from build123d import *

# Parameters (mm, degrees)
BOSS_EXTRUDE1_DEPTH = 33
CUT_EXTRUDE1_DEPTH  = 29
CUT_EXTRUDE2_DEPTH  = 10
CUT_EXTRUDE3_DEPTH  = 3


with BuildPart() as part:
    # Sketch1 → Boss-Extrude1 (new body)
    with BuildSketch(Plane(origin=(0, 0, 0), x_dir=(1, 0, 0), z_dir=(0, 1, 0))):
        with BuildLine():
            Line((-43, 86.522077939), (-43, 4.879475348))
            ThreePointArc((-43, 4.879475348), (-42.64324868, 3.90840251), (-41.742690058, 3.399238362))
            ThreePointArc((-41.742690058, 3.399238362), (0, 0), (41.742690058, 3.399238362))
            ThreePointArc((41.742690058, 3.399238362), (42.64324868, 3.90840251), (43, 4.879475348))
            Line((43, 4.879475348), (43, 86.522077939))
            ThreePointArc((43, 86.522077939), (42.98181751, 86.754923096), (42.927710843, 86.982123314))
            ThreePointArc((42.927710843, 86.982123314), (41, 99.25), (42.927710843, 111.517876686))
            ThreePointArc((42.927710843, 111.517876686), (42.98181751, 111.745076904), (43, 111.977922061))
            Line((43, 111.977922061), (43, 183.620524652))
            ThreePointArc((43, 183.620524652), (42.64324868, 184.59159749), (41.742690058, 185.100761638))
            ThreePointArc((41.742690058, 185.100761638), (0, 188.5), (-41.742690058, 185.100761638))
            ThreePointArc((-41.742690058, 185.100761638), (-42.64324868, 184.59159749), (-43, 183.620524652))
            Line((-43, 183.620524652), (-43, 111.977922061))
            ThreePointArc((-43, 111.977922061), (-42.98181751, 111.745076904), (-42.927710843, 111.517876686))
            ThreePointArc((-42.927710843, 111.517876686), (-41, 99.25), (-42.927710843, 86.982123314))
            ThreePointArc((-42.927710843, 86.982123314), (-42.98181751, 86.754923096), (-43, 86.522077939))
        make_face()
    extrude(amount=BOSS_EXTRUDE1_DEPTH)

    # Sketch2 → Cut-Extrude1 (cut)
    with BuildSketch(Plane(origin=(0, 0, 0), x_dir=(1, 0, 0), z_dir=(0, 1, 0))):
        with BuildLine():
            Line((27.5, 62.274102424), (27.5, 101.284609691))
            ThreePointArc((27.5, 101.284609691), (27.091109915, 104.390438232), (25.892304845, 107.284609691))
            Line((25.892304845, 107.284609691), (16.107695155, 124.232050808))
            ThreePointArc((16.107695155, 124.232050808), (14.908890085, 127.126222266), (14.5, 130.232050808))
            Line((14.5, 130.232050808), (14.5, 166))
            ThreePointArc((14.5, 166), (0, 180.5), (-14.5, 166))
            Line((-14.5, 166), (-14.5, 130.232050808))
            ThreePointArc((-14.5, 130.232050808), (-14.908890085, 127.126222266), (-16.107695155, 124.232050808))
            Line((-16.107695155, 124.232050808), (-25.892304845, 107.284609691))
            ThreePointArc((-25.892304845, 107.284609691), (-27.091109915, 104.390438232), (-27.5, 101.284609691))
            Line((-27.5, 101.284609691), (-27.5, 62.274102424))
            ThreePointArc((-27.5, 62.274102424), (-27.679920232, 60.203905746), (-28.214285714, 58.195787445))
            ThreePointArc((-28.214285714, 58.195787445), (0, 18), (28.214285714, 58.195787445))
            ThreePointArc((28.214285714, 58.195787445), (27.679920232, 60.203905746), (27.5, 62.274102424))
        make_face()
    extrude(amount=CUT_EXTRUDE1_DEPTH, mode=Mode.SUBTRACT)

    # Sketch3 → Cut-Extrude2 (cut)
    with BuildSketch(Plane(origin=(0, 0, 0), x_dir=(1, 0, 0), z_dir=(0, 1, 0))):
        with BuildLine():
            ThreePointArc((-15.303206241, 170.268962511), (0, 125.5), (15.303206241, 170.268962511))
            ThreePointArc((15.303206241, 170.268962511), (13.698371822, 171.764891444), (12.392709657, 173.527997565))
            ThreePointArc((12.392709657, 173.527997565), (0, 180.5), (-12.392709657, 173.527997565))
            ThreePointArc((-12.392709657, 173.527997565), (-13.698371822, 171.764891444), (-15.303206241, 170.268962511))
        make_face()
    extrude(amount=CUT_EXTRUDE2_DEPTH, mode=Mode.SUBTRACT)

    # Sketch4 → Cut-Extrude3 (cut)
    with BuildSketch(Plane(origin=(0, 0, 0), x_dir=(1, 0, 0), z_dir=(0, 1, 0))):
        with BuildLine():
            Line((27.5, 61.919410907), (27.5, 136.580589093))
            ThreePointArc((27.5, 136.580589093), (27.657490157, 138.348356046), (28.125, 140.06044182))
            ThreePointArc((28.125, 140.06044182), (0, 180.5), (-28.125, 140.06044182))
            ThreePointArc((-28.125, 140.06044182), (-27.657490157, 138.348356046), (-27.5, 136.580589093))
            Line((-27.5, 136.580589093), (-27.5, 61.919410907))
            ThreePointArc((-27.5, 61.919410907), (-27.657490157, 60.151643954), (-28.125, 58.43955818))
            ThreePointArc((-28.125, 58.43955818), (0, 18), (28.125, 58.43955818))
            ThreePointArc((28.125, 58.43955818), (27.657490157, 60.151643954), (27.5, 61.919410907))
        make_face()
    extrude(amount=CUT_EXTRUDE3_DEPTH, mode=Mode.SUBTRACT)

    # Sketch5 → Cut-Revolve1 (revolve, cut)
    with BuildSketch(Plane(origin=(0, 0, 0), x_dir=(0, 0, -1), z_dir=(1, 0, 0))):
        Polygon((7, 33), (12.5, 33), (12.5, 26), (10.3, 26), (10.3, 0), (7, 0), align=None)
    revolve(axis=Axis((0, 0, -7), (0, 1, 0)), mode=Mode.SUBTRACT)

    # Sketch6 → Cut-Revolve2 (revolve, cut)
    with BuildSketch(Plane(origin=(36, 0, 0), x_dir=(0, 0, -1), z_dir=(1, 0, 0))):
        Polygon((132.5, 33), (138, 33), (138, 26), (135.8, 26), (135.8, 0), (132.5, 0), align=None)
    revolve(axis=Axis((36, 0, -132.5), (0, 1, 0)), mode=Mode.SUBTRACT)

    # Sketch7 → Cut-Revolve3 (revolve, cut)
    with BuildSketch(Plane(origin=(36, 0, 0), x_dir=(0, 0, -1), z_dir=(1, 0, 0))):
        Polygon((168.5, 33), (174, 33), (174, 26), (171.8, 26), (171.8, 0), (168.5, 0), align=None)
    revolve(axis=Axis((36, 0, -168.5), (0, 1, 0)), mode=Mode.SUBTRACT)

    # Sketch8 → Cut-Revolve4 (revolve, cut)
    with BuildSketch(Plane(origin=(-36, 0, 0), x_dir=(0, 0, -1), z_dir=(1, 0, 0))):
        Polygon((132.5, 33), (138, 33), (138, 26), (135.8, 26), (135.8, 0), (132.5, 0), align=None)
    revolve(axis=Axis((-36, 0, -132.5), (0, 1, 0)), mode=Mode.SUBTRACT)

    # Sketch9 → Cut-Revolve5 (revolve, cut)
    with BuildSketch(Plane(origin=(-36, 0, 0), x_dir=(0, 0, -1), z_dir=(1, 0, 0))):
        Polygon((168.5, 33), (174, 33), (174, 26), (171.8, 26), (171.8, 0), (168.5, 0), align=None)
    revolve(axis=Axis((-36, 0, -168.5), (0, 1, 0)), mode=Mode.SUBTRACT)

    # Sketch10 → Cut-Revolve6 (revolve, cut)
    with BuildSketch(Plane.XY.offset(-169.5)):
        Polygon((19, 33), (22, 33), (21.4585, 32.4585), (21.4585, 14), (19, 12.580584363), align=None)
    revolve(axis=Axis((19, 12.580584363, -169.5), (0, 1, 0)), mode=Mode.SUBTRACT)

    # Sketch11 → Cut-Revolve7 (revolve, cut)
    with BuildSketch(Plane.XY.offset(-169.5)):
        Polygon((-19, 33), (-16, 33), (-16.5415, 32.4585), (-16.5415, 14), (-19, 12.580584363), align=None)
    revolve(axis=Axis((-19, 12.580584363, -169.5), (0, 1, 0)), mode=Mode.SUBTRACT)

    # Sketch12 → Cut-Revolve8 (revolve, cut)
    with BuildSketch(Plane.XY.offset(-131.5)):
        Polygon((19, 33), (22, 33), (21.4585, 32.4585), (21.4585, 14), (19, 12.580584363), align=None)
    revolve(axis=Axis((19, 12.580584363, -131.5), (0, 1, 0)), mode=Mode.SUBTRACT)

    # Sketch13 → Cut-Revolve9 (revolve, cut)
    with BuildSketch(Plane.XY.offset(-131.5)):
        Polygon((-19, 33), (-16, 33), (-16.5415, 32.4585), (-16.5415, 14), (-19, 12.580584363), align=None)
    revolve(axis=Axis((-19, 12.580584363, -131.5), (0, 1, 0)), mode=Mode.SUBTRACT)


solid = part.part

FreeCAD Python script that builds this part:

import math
import FreeCAD as App
import Part
import Sketcher
from FreeCAD import Vector
Q = App.Units.Quantity

doc = App.newDocument("Part")
body = doc.addObject("PartDesign::Body", "Body")

# Sketch on XZ plane
sketch1 = doc.addObject("Sketcher::SketchObject", "Sketch")
body.addObject(sketch1)
sketch1.AttachmentSupport = (doc.XZ_Plane, [""])
sketch1.MapMode = "FlatFace"
sketch1.addGeometry([
    Part.LineSegment(Vector(-43, -86.522078, 0), Vector(-43, -4.879475, 0)),  # 0
    Part.ArcOfCircle(Part.Circle(Vector(-41.5, -4.879475, 0), Vector(0, 0, 1), 1.5), math.radians(99.311005), math.radians(180)),  # 1
    Part.ArcOfCircle(Part.Circle(Vector(0, -258, 0), Vector(0, 0, 1), 258), math.radians(80.688995), math.radians(99.311005)),  # 2
    Part.ArcOfCircle(Part.Circle(Vector(41.5, -4.879475, 0), Vector(0, 0, 1), 1.5), math.radians(0), math.radians(80.688995)),  # 3
    Part.LineSegment(Vector(43, -4.879475, 0), Vector(43, -86.522078, 0)),  # 4
    Part.ArcOfCircle(Part.Circle(Vector(41.5, -86.522078, 0), Vector(0, 0, 1), 1.5), math.radians(-17.860284), math.radians(0)),  # 5
    Part.ArcOfCircle(Part.Circle(Vector(81, -99.25, 0), Vector(0, 0, 1), 40), math.radians(162.139716), math.radians(197.860284)),  # 6
    Part.ArcOfCircle(Part.Circle(Vector(41.5, -111.977922, 0), Vector(0, 0, 1), 1.5), math.radians(0), math.radians(17.860284)),  # 7
    Part.LineSegment(Vector(43, -111.977922, 0), Vector(43, -183.620525, 0)),  # 8
    Part.ArcOfCircle(Part.Circle(Vector(41.5, -183.620525, 0), Vector(0, 0, 1), 1.5), math.radians(-80.688995), math.radians(0)),  # 9
    Part.ArcOfCircle(Part.Circle(Vector(0, 69.5, 0), Vector(0, 0, 1), 258), math.radians(-99.311005), math.radians(-80.688995)),  # 10
    Part.ArcOfCircle(Part.Circle(Vector(-41.5, -183.620525, 0), Vector(0, 0, 1), 1.5), math.radians(180), math.radians(260.688995)),  # 11
    Part.LineSegment(Vector(-43, -183.620525, 0), Vector(-43, -111.977922, 0)),  # 12
    Part.ArcOfCircle(Part.Circle(Vector(-41.5, -111.977922, 0), Vector(0, 0, 1), 1.5), math.radians(162.139716), math.radians(180)),  # 13
    Part.ArcOfCircle(Part.Circle(Vector(-81, -99.25, 0), Vector(0, 0, 1), 40), math.radians(-17.860284), math.radians(17.860284)),  # 14
    Part.ArcOfCircle(Part.Circle(Vector(-41.5, -86.522078, 0), Vector(0, 0, 1), 1.5), math.radians(180), math.radians(197.860284)),  # 15
], False)
sketch1.addConstraint([
    Sketcher.Constraint("Tangent", 0, 2, 1, 2),
    Sketcher.Constraint("Tangent", 1, 1, 2, 2),
    Sketcher.Constraint("Tangent", 2, 1, 3, 2),
    Sketcher.Constraint("Tangent", 3, 1, 4, 1),
    Sketcher.Constraint("Tangent", 4, 2, 5, 2),
    Sketcher.Constraint("Tangent", 5, 1, 6, 1),
    Sketcher.Constraint("Tangent", 6, 2, 7, 2),
    Sketcher.Constraint("Tangent", 7, 1, 8, 1),
    Sketcher.Constraint("Tangent", 8, 2, 9, 2),
    Sketcher.Constraint("Tangent", 9, 1, 10, 2),
    Sketcher.Constraint("Tangent", 10, 1, 11, 2),
    Sketcher.Constraint("Tangent", 11, 1, 12, 1),
    Sketcher.Constraint("Tangent", 12, 2, 13, 2),
    Sketcher.Constraint("Tangent", 13, 1, 14, 1),
    Sketcher.Constraint("Tangent", 14, 2, 15, 2),
    Sketcher.Constraint("Tangent", 15, 1, 0, 1),
    Sketcher.Constraint("Vertical", 0),
    Sketcher.Constraint("Vertical", 4),
    Sketcher.Constraint("Vertical", 8),
    Sketcher.Constraint("Vertical", 12),
    Sketcher.Constraint("Equal", 1, 3),
    Sketcher.Constraint("Equal", 3, 5),
    Sketcher.Constraint("Equal", 5, 7),
    Sketcher.Constraint("Equal", 7, 9),
    Sketcher.Constraint("Equal", 2, 10),
    Sketcher.Constraint("Equal", 9, 11),
    Sketcher.Constraint("Equal", 11, 13),
    Sketcher.Constraint("Equal", 6, 14),
    Sketcher.Constraint("Equal", 13, 15),
    Sketcher.Constraint("Symmetric", 1, 3, 3, 3, -2),
    Sketcher.Constraint("Symmetric", 9, 3, 11, 3, -2),
    Sketcher.Constraint("Symmetric", 6, 3, 14, 3, -2),
    Sketcher.Constraint("Vertical", 5, 3, 7, 3),
    Sketcher.Constraint("Radius", 2, 258.0),
    Sketcher.Constraint("Radius", 6, 40.0),
    Sketcher.Constraint("Radius", 1, 1.5),
    Sketcher.Constraint("DistanceY", 2, 3, -1, 1, 258.0),
    Sketcher.Constraint("DistanceX", -1, 1, 6, 3, 81.0),
    Sketcher.Constraint("DistanceX", 0, 2, -1, 1, 43.0),
    Sketcher.Constraint("DistanceY", -1, 1, 10, 3, 69.5),
    Sketcher.Constraint("DistanceY", 6, 3, -1, 1, 99.25),
])
pad1 = doc.addObject("PartDesign::Pad", "Pad")
body.addObject(pad1)
pad1.Profile = sketch1
pad1.Length = 33
pad1.Reversed = True

# Sketch on XZ plane
sketch2 = doc.addObject("Sketcher::SketchObject", "Sketch001")
body.addObject(sketch2)
sketch2.AttachmentSupport = (doc.XZ_Plane, [""])
sketch2.MapMode = "FlatFace"
sketch2.addGeometry([
    Part.LineSegment(Vector(27.5, -62.274102, 0), Vector(27.5, -101.28461, 0)),  # 0
    Part.ArcOfCircle(Part.Circle(Vector(15.5, -101.28461, 0), Vector(0, 0, 1), 12), math.radians(-30), math.radians(0)),  # 1
    Part.LineSegment(Vector(25.892305, -107.28461, 0), Vector(16.107695, -124.232051, 0)),  # 2
    Part.ArcOfCircle(Part.Circle(Vector(26.5, -130.232051, 0), Vector(0, 0, 1), 12), math.radians(150), math.radians(180)),  # 3
    Part.LineSegment(Vector(14.5, -130.232051, 0), Vector(14.5, -166, 0)),  # 4
    Part.ArcOfCircle(Part.Circle(Vector(0, -166, 0), Vector(0, 0, 1), 14.5), math.radians(180), math.radians(360)),  # 5
    Part.LineSegment(Vector(-14.5, -166, 0), Vector(-14.5, -130.232051, 0)),  # 6
    Part.ArcOfCircle(Part.Circle(Vector(-26.5, -130.232051, 0), Vector(0, 0, 1), 12), math.radians(0), math.radians(30)),  # 7
    Part.LineSegment(Vector(-16.107695, -124.232051, 0), Vector(-25.892305, -107.28461, 0)),  # 8
    Part.ArcOfCircle(Part.Circle(Vector(-15.5, -101.28461, 0), Vector(0, 0, 1), 12), math.radians(-180), math.radians(-150)),  # 9
    Part.LineSegment(Vector(-27.5, -101.28461, 0), Vector(-27.5, -62.274102, 0)),  # 10
    Part.ArcOfCircle(Part.Circle(Vector(-39.5, -62.274102, 0), Vector(0, 0, 1), 12), math.radians(0), math.radians(19.868319)),  # 11
    Part.ArcOfCircle(Part.Circle(Vector(0, -48, 0), Vector(0, 0, 1), 30), math.radians(-19.868319), math.radians(199.868319)),  # 12
    Part.ArcOfCircle(Part.Circle(Vector(39.5, -62.274102, 0), Vector(0, 0, 1), 12), math.radians(160.131681), math.radians(180)),  # 13
], False)
sketch2.addConstraint([
    Sketcher.Constraint("Tangent", 0, 2, 1, 2),
    Sketcher.Constraint("Tangent", 1, 1, 2, 1),
    Sketcher.Constraint("Tangent", 2, 2, 3, 1),
    Sketcher.Constraint("Tangent", 3, 2, 4, 1),
    Sketcher.Constraint("Tangent", 4, 2, 5, 2),
    Sketcher.Constraint("Tangent", 5, 1, 6, 1),
    Sketcher.Constraint("Tangent", 6, 2, 7, 1),
    Sketcher.Constraint("Tangent", 7, 2, 8, 1),
    Sketcher.Constraint("Tangent", 8, 2, 9, 2),
    Sketcher.Constraint("Tangent", 9, 1, 10, 1),
    Sketcher.Constraint("Tangent", 10, 2, 11, 1),
    Sketcher.Constraint("Tangent", 11, 2, 12, 2),
    Sketcher.Constraint("Tangent", 12, 1, 13, 1),
    Sketcher.Constraint("Tangent", 13, 2, 0, 1),
    Sketcher.Constraint("Vertical", 0),
    Sketcher.Constraint("Vertical", 4),
    Sketcher.Constraint("Vertical", 6),
    Sketcher.Constraint("Vertical", 10),
    Sketcher.Constraint("Equal", 1, 3),
    Sketcher.Constraint("Equal", 3, 7),
    Sketcher.Constraint("Equal", 7, 9),
    Sketcher.Constraint("Equal", 9, 11),
    Sketcher.Constraint("Equal", 11, 13),
    Sketcher.Constraint("Symmetric", 3, 3, 7, 3, -2),
    Sketcher.Constraint("Symmetric", 1, 3, 9, 3, -2),
    Sketcher.Constraint("PointOnObject", 12, 3, -2),
    Sketcher.Constraint("Radius", 1, 12.0),
    Sketcher.Constraint("Radius", 12, 30.0),
    Sketcher.Constraint("Radius", 5, 14.5),
    Sketcher.Constraint("Angle", 2, Q("-120 deg")),
    Sketcher.Constraint("DistanceY", 5, 3, -1, 1, 166.0),
    Sketcher.Constraint("DistanceY", 12, 3, -1, 1, 48.0),
    Sketcher.Constraint("DistanceX", 1, 3, 3, 3, 11.0),
    Sketcher.Constraint("DistanceY", 4, 2, 4, 1, 35.767949),
])
pocket1 = doc.addObject("PartDesign::Pocket", "Pocket")
body.addObject(pocket1)
pocket1.Profile = sketch2
pocket1.Length = 29

# Sketch on XZ plane
sketch3 = doc.addObject("Sketcher::SketchObject", "Sketch002")
body.addObject(sketch3)
sketch3.AttachmentSupport = (doc.XZ_Plane, [""])
sketch3.MapMode = "FlatFace"
sketch3.addGeometry([
    Part.ArcOfCircle(Part.Circle(Vector(0, -150.5, 0), Vector(0, 0, 1), 25), math.radians(-52.256451), math.radians(232.256451)),
    Part.ArcOfCircle(Part.Circle(Vector(22.648745, -179.758065, 0), Vector(0, 0, 1), 12), math.radians(127.743549), math.radians(148.723256)),
    Part.ArcOfCircle(Part.Circle(Vector(0, -166, 0), Vector(0, 0, 1), 14.5), math.radians(-148.723256), math.radians(-31.276744)),
    Part.ArcOfCircle(Part.Circle(Vector(-22.648745, -179.758065, 0), Vector(0, 0, 1), 12), math.radians(31.276744), math.radians(52.256451)),
], False)
sketch3.addConstraint([
    Sketcher.Constraint("Tangent", 0, 1, 1, 1),
    Sketcher.Constraint("Tangent", 1, 2, 2, 2),
    Sketcher.Constraint("Tangent", 2, 1, 3, 1),
    Sketcher.Constraint("Tangent", 3, 2, 0, 2),
    Sketcher.Constraint("Equal", 1, 3),
    Sketcher.Constraint("Symmetric", 1, 3, 3, 3, -2),
    Sketcher.Constraint("Radius", 0, 25.0),
    Sketcher.Constraint("Radius", 1, 12.0),
    Sketcher.Constraint("Radius", 2, 14.5),
    Sketcher.Constraint("DistanceY", 2, 3, -1, 1, 166.0),
    Sketcher.Constraint("DistanceY", 0, 3, -1, 1, 150.5),
])
pocket2 = doc.addObject("PartDesign::Pocket", "Pocket001")
body.addObject(pocket2)
pocket2.Profile = sketch3
pocket2.Length = 10

# Sketch on XZ plane
sketch4 = doc.addObject("Sketcher::SketchObject", "Sketch003")
body.addObject(sketch4)
sketch4.AttachmentSupport = (doc.XZ_Plane, [""])
sketch4.MapMode = "FlatFace"
sketch4.addGeometry([
    Part.LineSegment(Vector(27.5, -61.919411, 0), Vector(27.5, -136.580589, 0)),  # 0
    Part.ArcOfCircle(Part.Circle(Vector(37.5, -136.580589, 0), Vector(0, 0, 1), 10), math.radians(180), math.radians(200.364135)),  # 1
    Part.ArcOfCircle(Part.Circle(Vector(0, -150.5, 0), Vector(0, 0, 1), 30), math.radians(159.635865), math.radians(380.364135)),  # 2
    Part.ArcOfCircle(Part.Circle(Vector(-37.5, -136.580589, 0), Vector(0, 0, 1), 10), math.radians(-20.364135), math.radians(0)),  # 3
    Part.LineSegment(Vector(-27.5, -136.580589, 0), Vector(-27.5, -61.919411, 0)),  # 4
    Part.ArcOfCircle(Part.Circle(Vector(-37.5, -61.919411, 0), Vector(0, 0, 1), 10), math.radians(0), math.radians(20.364135)),  # 5
    Part.ArcOfCircle(Part.Circle(Vector(0, -48, 0), Vector(0, 0, 1), 30), math.radians(-20.364135), math.radians(200.364135)),  # 6
    Part.ArcOfCircle(Part.Circle(Vector(37.5, -61.919411, 0), Vector(0, 0, 1), 10), math.radians(159.635865), math.radians(180)),  # 7
], False)
sketch4.addConstraint([
    Sketcher.Constraint("Tangent", 0, 2, 1, 1),
    Sketcher.Constraint("Tangent", 1, 2, 2, 2),
    Sketcher.Constraint("Tangent", 2, 1, 3, 1),
    Sketcher.Constraint("Tangent", 3, 2, 4, 1),
    Sketcher.Constraint("Tangent", 4, 2, 5, 1),
    Sketcher.Constraint("Tangent", 5, 2, 6, 2),
    Sketcher.Constraint("Tangent", 6, 1, 7, 1),
    Sketcher.Constraint("Tangent", 7, 2, 0, 1),
    Sketcher.Constraint("Vertical", 0),
    Sketcher.Constraint("Vertical", 4),
    Sketcher.Constraint("Equal", 1, 3),
    Sketcher.Constraint("Equal", 3, 5),
    Sketcher.Constraint("Equal", 2, 6),
    Sketcher.Constraint("Equal", 5, 7),
    Sketcher.Constraint("Symmetric", 1, 3, 3, 3, -2),
    Sketcher.Constraint("PointOnObject", 6, 3, -2),
    Sketcher.Constraint("Radius", 1, 10.0),
    Sketcher.Constraint("Radius", 2, 30.0),
    Sketcher.Constraint("DistanceY", 6, 3, -1, 1, 48.0),
    Sketcher.Constraint("DistanceX", 3, 3, 1, 3, 75.0),
    Sketcher.Constraint("DistanceY", 2, 3, -1, 1, 150.5),
])
pocket3 = doc.addObject("PartDesign::Pocket", "Pocket002")
body.addObject(pocket3)
pocket3.Profile = sketch4
pocket3.Length = 3

# Sketch on YZ plane
sketch5 = doc.addObject("Sketcher::SketchObject", "Sketch004")
body.addObject(sketch5)
sketch5.AttachmentSupport = (doc.YZ_Plane, [""])
sketch5.MapMode = "FlatFace"
sketch5.addGeometry([
    Part.LineSegment(Vector(33, -12.5, 0), Vector(33, -7, 0)),  # 0
    Part.LineSegment(Vector(33, -7, 0), Vector(0, -7, 0)),  # 1
    Part.LineSegment(Vector(0, -7, 0), Vector(0, -10.3, 0)),  # 2
    Part.LineSegment(Vector(0, -10.3, 0), Vector(26, -10.3, 0)),  # 3
    Part.LineSegment(Vector(26, -10.3, 0), Vector(26, -12.5, 0)),  # 4
    Part.LineSegment(Vector(26, -12.5, 0), Vector(33, -12.5, 0)),  # 5
], False)
sketch5.addGeometry(Part.LineSegment(Vector(0, -7, 0), Vector(33, -7, 0)), True)  # axis
sketch5.addConstraint([
    Sketcher.Constraint("Coincident", 0, 2, 1, 1),
    Sketcher.Constraint("Coincident", 1, 2, 2, 1),
    Sketcher.Constraint("Coincident", 2, 2, 3, 1),
    Sketcher.Constraint("Coincident", 3, 2, 4, 1),
    Sketcher.Constraint("Coincident", 4, 2, 5, 1),
    Sketcher.Constraint("Coincident", 5, 2, 0, 1),
    Sketcher.Constraint("Vertical", 0),
    Sketcher.Constraint("Horizontal", 1),
    Sketcher.Constraint("Vertical", 2),
    Sketcher.Constraint("Horizontal", 3),
    Sketcher.Constraint("Vertical", 4),
    Sketcher.Constraint("Horizontal", 5),
    Sketcher.Constraint("Horizontal", 6),
    Sketcher.Constraint("Coincident", 6, 1, 1, 2),
    Sketcher.Constraint("PointOnObject", 1, 2, -2),
    Sketcher.Constraint("Vertical", 5, 2, 6, 2),
    Sketcher.Constraint("DistanceX", 1, 2, 1, 1, 33.0),
    Sketcher.Constraint("DistanceX", 3, 1, 3, 2, 26.0),
    Sketcher.Constraint("DistanceY", 0, 1, 0, 2, 5.5),
    Sketcher.Constraint("DistanceY", 2, 2, 2, 1, 3.3),
    Sketcher.Constraint("DistanceY", 0, 2, -1, 1, 7.0),
])
groove = doc.addObject("PartDesign::Groove", "Groove")
body.addObject(groove)
groove.Profile = sketch5
groove.ReferenceAxis = (sketch5, ["Axis0"])
groove.Angle = 360

# Sketch on YZ plane
sketch6 = doc.addObject("Sketcher::SketchObject", "Sketch005")
body.addObject(sketch6)
sketch6.AttachmentSupport = (doc.YZ_Plane, [""])
sketch6.MapMode = "FlatFace"
sketch6.AttachmentOffset = App.Placement(Vector(0, 0, 36), App.Rotation())
sketch6.addGeometry([
    Part.LineSegment(Vector(33, -138, 0), Vector(33, -132.5, 0)),  # 0
    Part.LineSegment(Vector(33, -132.5, 0), Vector(0, -132.5, 0)),  # 1
    Part.LineSegment(Vector(0, -132.5, 0), Vector(0, -135.8, 0)),  # 2
    Part.LineSegment(Vector(0, -135.8, 0), Vector(26, -135.8, 0)),  # 3
    Part.LineSegment(Vector(26, -135.8, 0), Vector(26, -138, 0)),  # 4
    Part.LineSegment(Vector(26, -138, 0), Vector(33, -138, 0)),  # 5
], False)
sketch6.addGeometry(Part.LineSegment(Vector(0, -132.5, 0), Vector(33, -132.5, 0)), True)  # axis
sketch6.addConstraint([
    Sketcher.Constraint("Coincident", 0, 2, 1, 1),
    Sketcher.Constraint("Coincident", 1, 2, 2, 1),
    Sketcher.Constraint("Coincident", 2, 2, 3, 1),
    Sketcher.Constraint("Coincident", 3, 2, 4, 1),
    Sketcher.Constraint("Coincident", 4, 2, 5, 1),
    Sketcher.Constraint("Coincident", 5, 2, 0, 1),
    Sketcher.Constraint("Vertical", 0),
    Sketcher.Constraint("Horizontal", 1),
    Sketcher.Constraint("Vertical", 2),
    Sketcher.Constraint("Horizontal", 3),
    Sketcher.Constraint("Vertical", 4),
    Sketcher.Constraint("Horizontal", 5),
    Sketcher.Constraint("Horizontal", 6),
    Sketcher.Constraint("Coincident", 6, 1, 1, 2),
    Sketcher.Constraint("PointOnObject", 1, 2, -2),
    Sketcher.Constraint("Vertical", 5, 2, 6, 2),
    Sketcher.Constraint("DistanceX", 1, 2, 1, 1, 33.0),
    Sketcher.Constraint("DistanceX", 3, 1, 3, 2, 26.0),
    Sketcher.Constraint("DistanceY", 0, 1, 0, 2, 5.5),
    Sketcher.Constraint("DistanceY", 2, 2, 2, 1, 3.3),
    Sketcher.Constraint("DistanceY", 4, 2, -1, 1, 138.0),
])
groove2 = doc.addObject("PartDesign::Groove", "Groove001")
body.addObject(groove2)
groove2.Profile = sketch6
groove2.ReferenceAxis = (sketch6, ["Axis0"])
groove2.Angle = 360

# Sketch on YZ plane
sketch7 = doc.addObject("Sketcher::SketchObject", "Sketch006")
body.addObject(sketch7)
sketch7.AttachmentSupport = (doc.YZ_Plane, [""])
sketch7.MapMode = "FlatFace"
sketch7.AttachmentOffset = App.Placement(Vector(0, 0, 36), App.Rotation())
sketch7.addGeometry([
    Part.LineSegment(Vector(33, -174, 0), Vector(33, -168.5, 0)),  # 0
    Part.LineSegment(Vector(33, -168.5, 0), Vector(0, -168.5, 0)),  # 1
    Part.LineSegment(Vector(0, -168.5, 0), Vector(0, -171.8, 0)),  # 2
    Part.LineSegment(Vector(0, -171.8, 0), Vector(26, -171.8, 0)),  # 3
    Part.LineSegment(Vector(26, -171.8, 0), Vector(26, -174, 0)),  # 4
    Part.LineSegment(Vector(26, -174, 0), Vector(33, -174, 0)),  # 5
], False)
sketch7.addGeometry(Part.LineSegment(Vector(0, -168.5, 0), Vector(33, -168.5, 0)), True)  # axis
sketch7.addConstraint([
    Sketcher.Constraint("Coincident", 0, 2, 1, 1),
    Sketcher.Constraint("Coincident", 1, 2, 2, 1),
    Sketcher.Constraint("Coincident", 2, 2, 3, 1),
    Sketcher.Constraint("Coincident", 3, 2, 4, 1),
    Sketcher.Constraint("Coincident", 4, 2, 5, 1),
    Sketcher.Constraint("Coincident", 5, 2, 0, 1),
    Sketcher.Constraint("Vertical", 0),
    Sketcher.Constraint("Horizontal", 1),
    Sketcher.Constraint("Vertical", 2),
    Sketcher.Constraint("Horizontal", 3),
    Sketcher.Constraint("Vertical", 4),
    Sketcher.Constraint("Horizontal", 5),
    Sketcher.Constraint("Horizontal", 6),
    Sketcher.Constraint("Coincident", 6, 1, 1, 2),
    Sketcher.Constraint("PointOnObject", 1, 2, -2),
    Sketcher.Constraint("Vertical", 5, 2, 6, 2),
    Sketcher.Constraint("DistanceX", 1, 2, 1, 1, 33.0),
    Sketcher.Constraint("DistanceX", 3, 1, 3, 2, 26.0),
    Sketcher.Constraint("DistanceY", 0, 1, 0, 2, 5.5),
    Sketcher.Constraint("DistanceY", 2, 2, 2, 1, 3.3),
    Sketcher.Constraint("DistanceY", 4, 2, -1, 1, 174.0),
])
groove3 = doc.addObject("PartDesign::Groove", "Groove002")
body.addObject(groove3)
groove3.Profile = sketch7
groove3.ReferenceAxis = (sketch7, ["Axis0"])
groove3.Angle = 360

# Sketch on YZ plane
sketch8 = doc.addObject("Sketcher::SketchObject", "Sketch007")
body.addObject(sketch8)
sketch8.AttachmentSupport = (doc.YZ_Plane, [""])
sketch8.MapMode = "FlatFace"
sketch8.AttachmentOffset = App.Placement(Vector(0, 0, -36), App.Rotation())
sketch8.addGeometry([
    Part.LineSegment(Vector(33, -138, 0), Vector(33, -132.5, 0)),  # 0
    Part.LineSegment(Vector(33, -132.5, 0), Vector(0, -132.5, 0)),  # 1
    Part.LineSegment(Vector(0, -132.5, 0), Vector(0, -135.8, 0)),  # 2
    Part.LineSegment(Vector(0, -135.8, 0), Vector(26, -135.8, 0)),  # 3
    Part.LineSegment(Vector(26, -135.8, 0), Vector(26, -138, 0)),  # 4
    Part.LineSegment(Vector(26, -138, 0), Vector(33, -138, 0)),  # 5
], False)
sketch8.addGeometry(Part.LineSegment(Vector(0, -132.5, 0), Vector(33, -132.5, 0)), True)  # axis
sketch8.addConstraint([
    Sketcher.Constraint("Coincident", 0, 2, 1, 1),
    Sketcher.Constraint("Coincident", 1, 2, 2, 1),
    Sketcher.Constraint("Coincident", 2, 2, 3, 1),
    Sketcher.Constraint("Coincident", 3, 2, 4, 1),
    Sketcher.Constraint("Coincident", 4, 2, 5, 1),
    Sketcher.Constraint("Coincident", 5, 2, 0, 1),
    Sketcher.Constraint("Vertical", 0),
    Sketcher.Constraint("Horizontal", 1),
    Sketcher.Constraint("Vertical", 2),
    Sketcher.Constraint("Horizontal", 3),
    Sketcher.Constraint("Vertical", 4),
    Sketcher.Constraint("Horizontal", 5),
    Sketcher.Constraint("Horizontal", 6),
    Sketcher.Constraint("Coincident", 6, 1, 1, 2),
    Sketcher.Constraint("PointOnObject", 1, 2, -2),
    Sketcher.Constraint("Vertical", 5, 2, 6, 2),
    Sketcher.Constraint("DistanceX", 1, 2, 1, 1, 33.0),
    Sketcher.Constraint("DistanceX", 3, 1, 3, 2, 26.0),
    Sketcher.Constraint("DistanceY", 0, 1, 0, 2, 5.5),
    Sketcher.Constraint("DistanceY", 2, 2, 2, 1, 3.3),
    Sketcher.Constraint("DistanceY", 4, 2, -1, 1, 138.0),
])
groove4 = doc.addObject("PartDesign::Groove", "Groove003")
body.addObject(groove4)
groove4.Profile = sketch8
groove4.ReferenceAxis = (sketch8, ["Axis0"])
groove4.Angle = 360

# Sketch on YZ plane
sketch9 = doc.addObject("Sketcher::SketchObject", "Sketch008")
body.addObject(sketch9)
sketch9.AttachmentSupport = (doc.YZ_Plane, [""])
sketch9.MapMode = "FlatFace"
sketch9.AttachmentOffset = App.Placement(Vector(0, 0, -36), App.Rotation())
sketch9.addGeometry([
    Part.LineSegment(Vector(33, -174, 0), Vector(33, -168.5, 0)),  # 0
    Part.LineSegment(Vector(33, -168.5, 0), Vector(0, -168.5, 0)),  # 1
    Part.LineSegment(Vector(0, -168.5, 0), Vector(0, -171.8, 0)),  # 2
    Part.LineSegment(Vector(0, -171.8, 0), Vector(26, -171.8, 0)),  # 3
    Part.LineSegment(Vector(26, -171.8, 0), Vector(26, -174, 0)),  # 4
    Part.LineSegment(Vector(26, -174, 0), Vector(33, -174, 0)),  # 5
], False)
sketch9.addGeometry(Part.LineSegment(Vector(0, -168.5, 0), Vector(33, -168.5, 0)), True)  # axis
sketch9.addConstraint([
    Sketcher.Constraint("Coincident", 0, 2, 1, 1),
    Sketcher.Constraint("Coincident", 1, 2, 2, 1),
    Sketcher.Constraint("Coincident", 2, 2, 3, 1),
    Sketcher.Constraint("Coincident", 3, 2, 4, 1),
    Sketcher.Constraint("Coincident", 4, 2, 5, 1),
    Sketcher.Constraint("Coincident", 5, 2, 0, 1),
    Sketcher.Constraint("Vertical", 0),
    Sketcher.Constraint("Horizontal", 1),
    Sketcher.Constraint("Vertical", 2),
    Sketcher.Constraint("Horizontal", 3),
    Sketcher.Constraint("Vertical", 4),
    Sketcher.Constraint("Horizontal", 5),
    Sketcher.Constraint("Horizontal", 6),
    Sketcher.Constraint("Coincident", 6, 1, 1, 2),
    Sketcher.Constraint("PointOnObject", 1, 2, -2),
    Sketcher.Constraint("Vertical", 5, 2, 6, 2),
    Sketcher.Constraint("DistanceX", 1, 2, 1, 1, 33.0),
    Sketcher.Constraint("DistanceX", 3, 1, 3, 2, 26.0),
    Sketcher.Constraint("DistanceY", 0, 1, 0, 2, 5.5),
    Sketcher.Constraint("DistanceY", 2, 2, 2, 1, 3.3),
    Sketcher.Constraint("DistanceY", 4, 2, -1, 1, 174.0),
])
groove5 = doc.addObject("PartDesign::Groove", "Groove004")
body.addObject(groove5)
groove5.Profile = sketch9
groove5.ReferenceAxis = (sketch9, ["Axis0"])
groove5.Angle = 360

# Sketch on XY plane
sketch10 = doc.addObject("Sketcher::SketchObject", "Sketch009")
body.addObject(sketch10)
sketch10.AttachmentSupport = (doc.XY_Plane, [""])
sketch10.MapMode = "FlatFace"
sketch10.AttachmentOffset = App.Placement(Vector(0, 0, -169.5), App.Rotation())
sketch10.addGeometry([
    Part.LineSegment(Vector(22, 33, 0), Vector(19, 33, 0)),  # 0
    Part.LineSegment(Vector(19, 33, 0), Vector(19, 12.580584, 0)),  # 1
    Part.LineSegment(Vector(19, 12.580584, 0), Vector(21.4585, 14, 0)),  # 2
    Part.LineSegment(Vector(21.4585, 14, 0), Vector(21.4585, 32.4585, 0)),  # 3
    Part.LineSegment(Vector(21.4585, 32.4585, 0), Vector(22, 33, 0)),  # 4
], False)
sketch10.addGeometry(Part.LineSegment(Vector(19, 12.580584, 0), Vector(19, 33, 0)), True)  # axis
sketch10.addConstraint([
    Sketcher.Constraint("Coincident", 0, 2, 1, 1),
    Sketcher.Constraint("Coincident", 1, 2, 2, 1),
    Sketcher.Constraint("Coincident", 2, 2, 3, 1),
    Sketcher.Constraint("Coincident", 3, 2, 4, 1),
    Sketcher.Constraint("Coincident", 4, 2, 0, 1),
    Sketcher.Constraint("Horizontal", 0),
    Sketcher.Constraint("Vertical", 1),
    Sketcher.Constraint("Vertical", 3),
    Sketcher.Constraint("Vertical", 5),
    Sketcher.Constraint("Coincident", 5, 1, 1, 2),
    Sketcher.Constraint("Horizontal", 4, 2, 5, 2),
    Sketcher.Constraint("DistanceX", 0, 2, 0, 1, 3.0),
    Sketcher.Constraint("Angle", 2, Q("30 deg")),
    Sketcher.Constraint("Angle", 4, Q("45 deg")),
    Sketcher.Constraint("DistanceX", -1, 1, 0, 2, 19.0),
    Sketcher.Constraint("DistanceY", -1, 1, 0, 2, 33.0),
    Sketcher.Constraint("DistanceY", -1, 1, 2, 2, 14.0),
    Sketcher.Constraint("DistanceY", 3, 1, 3, 2, 18.4585),
])
groove6 = doc.addObject("PartDesign::Groove", "Groove005")
body.addObject(groove6)
groove6.Profile = sketch10
groove6.ReferenceAxis = (sketch10, ["Axis0"])
groove6.Angle = 360

# Sketch on XY plane
sketch11 = doc.addObject("Sketcher::SketchObject", "Sketch010")
body.addObject(sketch11)
sketch11.AttachmentSupport = (doc.XY_Plane, [""])
sketch11.MapMode = "FlatFace"
sketch11.AttachmentOffset = App.Placement(Vector(0, 0, -169.5), App.Rotation())
sketch11.addGeometry([
    Part.LineSegment(Vector(-16, 33, 0), Vector(-19, 33, 0)),  # 0
    Part.LineSegment(Vector(-19, 33, 0), Vector(-19, 12.580584, 0)),  # 1
    Part.LineSegment(Vector(-19, 12.580584, 0), Vector(-16.5415, 14, 0)),  # 2
    Part.LineSegment(Vector(-16.5415, 14, 0), Vector(-16.5415, 32.4585, 0)),  # 3
    Part.LineSegment(Vector(-16.5415, 32.4585, 0), Vector(-16, 33, 0)),  # 4
], False)
sketch11.addGeometry(Part.LineSegment(Vector(-19, 12.580584, 0), Vector(-19, 33, 0)), True)  # axis
sketch11.addConstraint([
    Sketcher.Constraint("Coincident", 0, 2, 1, 1),
    Sketcher.Constraint("Coincident", 1, 2, 2, 1),
    Sketcher.Constraint("Coincident", 2, 2, 3, 1),
    Sketcher.Constraint("Coincident", 3, 2, 4, 1),
    Sketcher.Constraint("Coincident", 4, 2, 0, 1),
    Sketcher.Constraint("Horizontal", 0),
    Sketcher.Constraint("Vertical", 1),
    Sketcher.Constraint("Vertical", 3),
    Sketcher.Constraint("Vertical", 5),
    Sketcher.Constraint("Coincident", 5, 1, 1, 2),
    Sketcher.Constraint("Horizontal", 4, 2, 5, 2),
    Sketcher.Constraint("DistanceX", 0, 2, 0, 1, 3.0),
    Sketcher.Constraint("Angle", 2, Q("30 deg")),
    Sketcher.Constraint("Angle", 4, Q("45 deg")),
    Sketcher.Constraint("DistanceX", 0, 2, -1, 1, 19.0),
    Sketcher.Constraint("DistanceY", -1, 1, 0, 2, 33.0),
    Sketcher.Constraint("DistanceY", -1, 1, 2, 2, 14.0),
    Sketcher.Constraint("DistanceY", 3, 1, 3, 2, 18.4585),
])
groove7 = doc.addObject("PartDesign::Groove", "Groove006")
body.addObject(groove7)
groove7.Profile = sketch11
groove7.ReferenceAxis = (sketch11, ["Axis0"])
groove7.Angle = 360

# Sketch on XY plane
sketch12 = doc.addObject("Sketcher::SketchObject", "Sketch011")
body.addObject(sketch12)
sketch12.AttachmentSupport = (doc.XY_Plane, [""])
sketch12.MapMode = "FlatFace"
sketch12.AttachmentOffset = App.Placement(Vector(0, 0, -131.5), App.Rotation())
sketch12.addGeometry([
    Part.LineSegment(Vector(22, 33, 0), Vector(19, 33, 0)),  # 0
    Part.LineSegment(Vector(19, 33, 0), Vector(19, 12.580584, 0)),  # 1
    Part.LineSegment(Vector(19, 12.580584, 0), Vector(21.4585, 14, 0)),  # 2
    Part.LineSegment(Vector(21.4585, 14, 0), Vector(21.4585, 32.4585, 0)),  # 3
    Part.LineSegment(Vector(21.4585, 32.4585, 0), Vector(22, 33, 0)),  # 4
], False)
sketch12.addGeometry(Part.LineSegment(Vector(19, 12.580584, 0), Vector(19, 33, 0)), True)  # axis
sketch12.addConstraint([
    Sketcher.Constraint("Coincident", 0, 2, 1, 1),
    Sketcher.Constraint("Coincident", 1, 2, 2, 1),
    Sketcher.Constraint("Coincident", 2, 2, 3, 1),
    Sketcher.Constraint("Coincident", 3, 2, 4, 1),
    Sketcher.Constraint("Coincident", 4, 2, 0, 1),
    Sketcher.Constraint("Horizontal", 0),
    Sketcher.Constraint("Vertical", 1),
    Sketcher.Constraint("Vertical", 3),
    Sketcher.Constraint("Vertical", 5),
    Sketcher.Constraint("Coincident", 5, 1, 1, 2),
    Sketcher.Constraint("Horizontal", 4, 2, 5, 2),
    Sketcher.Constraint("DistanceX", 0, 2, 0, 1, 3.0),
    Sketcher.Constraint("Angle", 2, Q("30 deg")),
    Sketcher.Constraint("Angle", 4, Q("45 deg")),
    Sketcher.Constraint("DistanceX", -1, 1, 0, 2, 19.0),
    Sketcher.Constraint("DistanceY", -1, 1, 0, 2, 33.0),
    Sketcher.Constraint("DistanceY", -1, 1, 2, 2, 14.0),
    Sketcher.Constraint("DistanceY", 3, 1, 3, 2, 18.4585),
])
groove8 = doc.addObject("PartDesign::Groove", "Groove007")
body.addObject(groove8)
groove8.Profile = sketch12
groove8.ReferenceAxis = (sketch12, ["Axis0"])
groove8.Angle = 360

# Sketch on XY plane
sketch13 = doc.addObject("Sketcher::SketchObject", "Sketch012")
body.addObject(sketch13)
sketch13.AttachmentSupport = (doc.XY_Plane, [""])
sketch13.MapMode = "FlatFace"
sketch13.AttachmentOffset = App.Placement(Vector(0, 0, -131.5), App.Rotation())
sketch13.addGeometry([
    Part.LineSegment(Vector(-16, 33, 0), Vector(-19, 33, 0)),  # 0
    Part.LineSegment(Vector(-19, 33, 0), Vector(-19, 12.580584, 0)),  # 1
    Part.LineSegment(Vector(-19, 12.580584, 0), Vector(-16.5415, 14, 0)),  # 2
    Part.LineSegment(Vector(-16.5415, 14, 0), Vector(-16.5415, 32.4585, 0)),  # 3
    Part.LineSegment(Vector(-16.5415, 32.4585, 0), Vector(-16, 33, 0)),  # 4
], False)
sketch13.addGeometry(Part.LineSegment(Vector(-19, 12.580584, 0), Vector(-19, 33, 0)), True)  # axis
sketch13.addConstraint([
    Sketcher.Constraint("Coincident", 0, 2, 1, 1),
    Sketcher.Constraint("Coincident", 1, 2, 2, 1),
    Sketcher.Constraint("Coincident", 2, 2, 3, 1),
    Sketcher.Constraint("Coincident", 3, 2, 4, 1),
    Sketcher.Constraint("Coincident", 4, 2, 0, 1),
    Sketcher.Constraint("Horizontal", 0),
    Sketcher.Constraint("Vertical", 1),
    Sketcher.Constraint("Vertical", 3),
    Sketcher.Constraint("Vertical", 5),
    Sketcher.Constraint("Coincident", 5, 1, 1, 2),
    Sketcher.Constraint("Horizontal", 4, 2, 5, 2),
    Sketcher.Constraint("DistanceX", 0, 2, 0, 1, 3.0),
    Sketcher.Constraint("Angle", 2, Q("30 deg")),
    Sketcher.Constraint("Angle", 4, Q("45 deg")),
    Sketcher.Constraint("DistanceX", 0, 2, -1, 1, 19.0),
    Sketcher.Constraint("DistanceY", -1, 1, 0, 2, 33.0),
    Sketcher.Constraint("DistanceY", -1, 1, 2, 2, 14.0),
    Sketcher.Constraint("DistanceY", 3, 1, 3, 2, 18.4585),
])
groove9 = doc.addObject("PartDesign::Groove", "Groove008")
body.addObject(groove9)
groove9.Profile = sketch13
groove9.ReferenceAxis = (sketch13, ["Axis0"])
groove9.Angle = 360

doc.recompute()
